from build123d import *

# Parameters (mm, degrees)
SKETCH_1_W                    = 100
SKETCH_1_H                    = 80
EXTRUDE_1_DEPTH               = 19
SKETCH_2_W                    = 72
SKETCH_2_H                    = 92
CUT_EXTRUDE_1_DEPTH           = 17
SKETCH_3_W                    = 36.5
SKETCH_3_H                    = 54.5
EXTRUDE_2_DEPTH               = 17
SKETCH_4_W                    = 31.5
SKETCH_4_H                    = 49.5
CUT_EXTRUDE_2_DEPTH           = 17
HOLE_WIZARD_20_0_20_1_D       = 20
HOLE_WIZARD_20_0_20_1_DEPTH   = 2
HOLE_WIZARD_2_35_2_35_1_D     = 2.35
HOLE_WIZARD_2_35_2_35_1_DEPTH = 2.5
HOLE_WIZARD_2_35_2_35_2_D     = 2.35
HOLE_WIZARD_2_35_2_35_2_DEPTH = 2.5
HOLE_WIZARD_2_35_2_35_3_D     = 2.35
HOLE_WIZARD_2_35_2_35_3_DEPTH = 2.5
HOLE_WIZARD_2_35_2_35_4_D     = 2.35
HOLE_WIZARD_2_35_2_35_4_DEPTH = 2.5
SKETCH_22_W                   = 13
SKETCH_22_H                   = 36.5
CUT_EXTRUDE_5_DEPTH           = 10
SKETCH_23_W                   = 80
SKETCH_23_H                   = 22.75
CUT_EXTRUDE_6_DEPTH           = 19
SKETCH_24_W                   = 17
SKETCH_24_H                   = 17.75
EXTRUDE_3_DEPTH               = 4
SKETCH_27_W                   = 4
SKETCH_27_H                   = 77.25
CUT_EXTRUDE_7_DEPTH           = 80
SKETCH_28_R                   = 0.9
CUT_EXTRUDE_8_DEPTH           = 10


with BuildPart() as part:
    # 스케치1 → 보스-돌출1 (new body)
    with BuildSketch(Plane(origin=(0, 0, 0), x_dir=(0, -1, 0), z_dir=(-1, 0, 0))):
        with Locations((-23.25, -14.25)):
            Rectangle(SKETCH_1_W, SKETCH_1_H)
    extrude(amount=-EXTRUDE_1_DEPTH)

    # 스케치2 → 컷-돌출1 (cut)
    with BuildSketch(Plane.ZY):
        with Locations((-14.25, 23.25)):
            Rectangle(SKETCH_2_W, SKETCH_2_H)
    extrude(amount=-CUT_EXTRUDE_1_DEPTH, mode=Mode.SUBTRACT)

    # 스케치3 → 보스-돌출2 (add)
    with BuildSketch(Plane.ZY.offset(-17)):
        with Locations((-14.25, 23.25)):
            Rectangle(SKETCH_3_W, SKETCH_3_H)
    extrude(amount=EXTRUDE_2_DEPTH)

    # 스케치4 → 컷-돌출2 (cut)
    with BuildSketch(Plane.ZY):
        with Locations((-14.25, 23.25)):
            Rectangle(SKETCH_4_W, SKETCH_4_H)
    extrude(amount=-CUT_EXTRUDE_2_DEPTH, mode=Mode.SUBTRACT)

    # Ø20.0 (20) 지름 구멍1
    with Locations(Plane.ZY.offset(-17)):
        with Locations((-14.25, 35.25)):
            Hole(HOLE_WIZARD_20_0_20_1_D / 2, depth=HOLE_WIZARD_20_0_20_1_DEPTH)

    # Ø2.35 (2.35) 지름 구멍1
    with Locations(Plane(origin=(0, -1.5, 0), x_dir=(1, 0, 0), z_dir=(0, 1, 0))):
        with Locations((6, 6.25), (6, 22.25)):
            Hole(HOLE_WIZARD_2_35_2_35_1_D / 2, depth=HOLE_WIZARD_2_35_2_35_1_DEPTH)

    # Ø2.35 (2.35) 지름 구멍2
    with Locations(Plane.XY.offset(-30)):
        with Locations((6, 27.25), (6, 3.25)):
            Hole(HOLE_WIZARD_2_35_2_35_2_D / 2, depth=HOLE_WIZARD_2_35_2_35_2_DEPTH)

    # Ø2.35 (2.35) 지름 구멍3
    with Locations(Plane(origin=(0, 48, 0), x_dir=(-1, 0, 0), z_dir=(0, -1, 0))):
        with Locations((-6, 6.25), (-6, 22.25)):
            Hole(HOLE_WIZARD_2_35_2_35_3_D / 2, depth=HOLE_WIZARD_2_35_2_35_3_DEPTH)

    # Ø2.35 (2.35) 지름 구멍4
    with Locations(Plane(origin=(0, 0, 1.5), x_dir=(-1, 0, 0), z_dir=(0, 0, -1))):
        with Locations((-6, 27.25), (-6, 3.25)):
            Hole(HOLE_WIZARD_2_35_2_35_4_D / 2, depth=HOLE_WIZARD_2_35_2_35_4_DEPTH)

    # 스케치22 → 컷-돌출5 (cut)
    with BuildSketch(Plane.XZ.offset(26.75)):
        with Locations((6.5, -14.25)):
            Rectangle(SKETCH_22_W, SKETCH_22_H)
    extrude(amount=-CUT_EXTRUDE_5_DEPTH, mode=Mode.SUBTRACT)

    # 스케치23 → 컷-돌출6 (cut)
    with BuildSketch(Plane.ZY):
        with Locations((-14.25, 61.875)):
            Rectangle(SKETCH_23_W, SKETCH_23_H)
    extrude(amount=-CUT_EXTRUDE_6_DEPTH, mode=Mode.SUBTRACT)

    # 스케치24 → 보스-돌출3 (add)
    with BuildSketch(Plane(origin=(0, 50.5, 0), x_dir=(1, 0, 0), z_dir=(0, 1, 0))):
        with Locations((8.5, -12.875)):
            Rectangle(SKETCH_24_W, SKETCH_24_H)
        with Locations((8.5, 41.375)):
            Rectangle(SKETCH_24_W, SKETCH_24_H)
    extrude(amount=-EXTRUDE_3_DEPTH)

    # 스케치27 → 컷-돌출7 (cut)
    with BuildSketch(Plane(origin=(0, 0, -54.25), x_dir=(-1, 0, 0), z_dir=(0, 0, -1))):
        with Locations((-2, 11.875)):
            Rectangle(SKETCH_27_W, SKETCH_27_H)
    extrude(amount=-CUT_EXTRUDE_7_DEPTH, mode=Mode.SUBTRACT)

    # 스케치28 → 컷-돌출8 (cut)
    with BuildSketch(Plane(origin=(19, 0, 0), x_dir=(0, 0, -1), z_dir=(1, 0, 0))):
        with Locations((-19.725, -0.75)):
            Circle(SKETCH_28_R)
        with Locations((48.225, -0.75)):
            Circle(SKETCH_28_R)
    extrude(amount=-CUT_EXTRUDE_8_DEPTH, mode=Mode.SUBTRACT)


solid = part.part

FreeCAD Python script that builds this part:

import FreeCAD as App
import Part
import Sketcher
Q = App.Units.Quantity

doc = App.newDocument("Part")
params = doc.addObject("Spreadsheet::Sheet", "Params")
for row, (alias, value) in enumerate([
    ("sketch1_width", "100 mm"),
    ("sketch1_height", "80 mm"),
    ("pad1_length", "19 mm"),
    ("sketch2_width", "92 mm"),
    ("sketch2_height", "72 mm"),
    ("pocket1_length", "17 mm"),
    ("sketch3_width", "54.5 mm"),
    ("sketch3_height", "36.5 mm"),
    ("pad2_length", "17 mm"),
    ("sketch4_width", "49.5 mm"),
    ("sketch4_height", "31.5 mm"),
    ("pocket2_length", "17 mm"),
    ("sketch5_diameter", "20 mm"),
    ("hole_diameter", "20 mm"),
    ("hole_depth", "2 mm"),
    ("sketch6_diameter", "2.35 mm"),
    ("hole2_diameter", "2.35 mm"),
    ("hole2_depth", "2.5 mm"),
    ("sketch7_diameter", "2.35 mm"),
    ("hole3_diameter", "2.35 mm"),
    ("hole3_depth", "2.5 mm"),
    ("sketch8_diameter", "2.35 mm"),
    ("hole4_diameter", "2.35 mm"),
    ("hole4_depth", "2.5 mm"),
    ("sketch9_diameter", "2.35 mm"),
    ("hole5_diameter", "2.35 mm"),
    ("hole5_depth", "2.5 mm"),
    ("sketch10_width", "13 mm"),
    ("sketch10_height", "36.5 mm"),
    ("pocket3_length", "10 mm"),
    ("sketch11_height", "80 mm"),
    ("sketch11_width", "22.75 mm"),
    ("pocket4_length", "19 mm"),
    ("sketch12_width", "17 mm"),
    ("sketch12_height", "17.75 mm"),
    ("pad3_length", "4 mm"),
    ("sketch13_width", "4 mm"),
    ("sketch13_height", "77.25 mm"),
    ("pocket5_length", "80 mm"),
    ("sketch14_diameter", "1.8 mm"),
    ("pocket6_length", "10 mm"),
], start=1):
    params.set(f"A{row}", alias)
    params.set(f"B{row}", "=" + value)
    params.setAlias(f"B{row}", alias)

body = doc.addObject("PartDesign::Body", "Body")

# Sketch on YZ plane
sketch1 = doc.addObject("Sketcher::SketchObject", "Sketch")
body.addObject(sketch1)
sketch1.AttachmentSupport = (doc.YZ_Plane, [""])
sketch1.MapMode = "FlatFace"
sketch1.addGeometry([
    Part.LineSegment(App.Vector(73, 26, 0), App.Vector(73, -54, 0)),
    Part.LineSegment(App.Vector(73, -54, 0), App.Vector(-27, -54, 0)),
    Part.LineSegment(App.Vector(-27, -54, 0), App.Vector(-27, 26, 0)),
    Part.LineSegment(App.Vector(-27, 26, 0), App.Vector(73, 26, 0)),
], False)
sketch1.addConstraint([
    Sketcher.Constraint("Coincident", 0, 2, 1, 1),
    Sketcher.Constraint("Coincident", 1, 2, 2, 1),
    Sketcher.Constraint("Coincident", 2, 2, 3, 1),
    Sketcher.Constraint("Coincident", 3, 2, 0, 1),
    Sketcher.Constraint("Vertical", 0),
    Sketcher.Constraint("Horizontal", 1),
    Sketcher.Constraint("Vertical", 2),
    Sketcher.Constraint("Horizontal", 3),
    Sketcher.Constraint("DistanceX", 1, 2, 1, 1, Q("100 mm")),
    Sketcher.Constraint("DistanceY", 0, 2, 0, 1, Q("80 mm")),
    Sketcher.Constraint("DistanceX", -1, 1, 0, 2, Q("73.25 mm")),
    Sketcher.Constraint("DistanceY", 0, 2, -1, 1, Q("54.25 mm")),
])
sketch1.setExpression("Constraints[8]", "Params.sketch1_width")
sketch1.setExpression("Constraints[9]", "Params.sketch1_height")
pad1 = doc.addObject("PartDesign::Pad", "Pad")
body.addObject(pad1)
pad1.Profile = sketch1
pad1.setExpression("Length", "Params.pad1_length")

# Sketch on YZ plane
sketch2 = doc.addObject("Sketcher::SketchObject", "Sketch001")
body.addObject(sketch2)
sketch2.AttachmentSupport = (doc.YZ_Plane, [""])
sketch2.MapMode = "FlatFace"
sketch2.addGeometry([
    Part.LineSegment(App.Vector(69, -50, 0), App.Vector(-23, -50, 0)),
    Part.LineSegment(App.Vector(-23, -50, 0), App.Vector(-23, 22, 0)),
    Part.LineSegment(App.Vector(-23, 22, 0), App.Vector(69, 22, 0)),
    Part.LineSegment(App.Vector(69, 22, 0), App.Vector(69, -50, 0)),
], False)
sketch2.addConstraint([
    Sketcher.Constraint("Coincident", 0, 2, 1, 1),
    Sketcher.Constraint("Coincident", 1, 2, 2, 1),
    Sketcher.Constraint("Coincident", 2, 2, 3, 1),
    Sketcher.Constraint("Coincident", 3, 2, 0, 1),
    Sketcher.Constraint("Horizontal", 0),
    Sketcher.Constraint("Vertical", 1),
    Sketcher.Constraint("Horizontal", 2),
    Sketcher.Constraint("Vertical", 3),
    Sketcher.Constraint("DistanceX", 0, 2, 0, 1, Q("92 mm")),
    Sketcher.Constraint("DistanceY", 1, 1, 1, 2, Q("72 mm")),
    Sketcher.Constraint("DistanceX", 0, 2, -1, 1, Q("22.75 mm")),
    Sketcher.Constraint("DistanceY", 0, 2, -1, 1, Q("50.25 mm")),
])
sketch2.setExpression("Constraints[8]", "Params.sketch2_width")
sketch2.setExpression("Constraints[9]", "Params.sketch2_height")
pocket1 = doc.addObject("PartDesign::Pocket", "Pocket")
body.addObject(pocket1)
pocket1.Profile = sketch2
pocket1.setExpression("Length", "Params.pocket1_length")
pocket1.Reversed = True

# Sketch on YZ plane
sketch3 = doc.addObject("Sketcher::SketchObject", "Sketch002")
body.addObject(sketch3)
sketch3.AttachmentSupport = (doc.YZ_Plane, [""])
sketch3.MapMode = "FlatFace"
sketch3.AttachmentOffset = App.Placement(App.Vector(0, 0, 17), App.Rotation())
sketch3.addGeometry([
    Part.LineSegment(App.Vector(50, -32, 0), App.Vector(-4, -32, 0)),
    Part.LineSegment(App.Vector(-4, -32, 0), App.Vector(-4, 4, 0)),
    Part.LineSegment(App.Vector(-4, 4, 0), App.Vector(50, 4, 0)),
    Part.LineSegment(App.Vector(50, 4, 0), App.Vector(50, -32, 0)),
], False)
sketch3.addConstraint([
    Sketcher.Constraint("Coincident", 0, 2, 1, 1),
    Sketcher.Constraint("Coincident", 1, 2, 2, 1),
    Sketcher.Constraint("Coincident", 2, 2, 3, 1),
    Sketcher.Constraint("Coincident", 3, 2, 0, 1),
    Sketcher.Constraint("Horizontal", 0),
    Sketcher.Constraint("Vertical", 1),
    Sketcher.Constraint("Horizontal", 2),
    Sketcher.Constraint("Vertical", 3),
    Sketcher.Constraint("DistanceX", 0, 2, 0, 1, Q("54.5 mm")),
    Sketcher.Constraint("DistanceY", 1, 1, 1, 2, Q("36.5 mm")),
    Sketcher.Constraint("DistanceX", 0, 2, -1, 1, Q("4 mm")),
    Sketcher.Constraint("DistanceY", -1, 1, 1, 2, Q("4 mm")),
])
sketch3.setExpression("Constraints[8]", "Params.sketch3_width")
sketch3.setExpression("Constraints[9]", "Params.sketch3_height")
pad2 = doc.addObject("PartDesign::Pad", "Pad001")
body.addObject(pad2)
pad2.Profile = sketch3
pad2.setExpression("Length", "Params.pad2_length")
pad2.Reversed = True

# Sketch on YZ plane
sketch4 = doc.addObject("Sketcher::SketchObject", "Sketch003")
body.addObject(sketch4)
sketch4.AttachmentSupport = (doc.YZ_Plane, [""])
sketch4.MapMode = "FlatFace"
sketch4.addGeometry([
    Part.LineSegment(App.Vector(48, -30, 0), App.Vector(-2, -30, 0)),
    Part.LineSegment(App.Vector(-2, -30, 0), App.Vector(-2, 2, 0)),
    Part.LineSegment(App.Vector(-2, 2, 0), App.Vector(48, 2, 0)),
    Part.LineSegment(App.Vector(48, 2, 0), App.Vector(48, -30, 0)),
], False)
sketch4.addConstraint([
    Sketcher.Constraint("Coincident", 0, 2, 1, 1),
    Sketcher.Constraint("Coincident", 1, 2, 2, 1),
    Sketcher.Constraint("Coincident", 2, 2, 3, 1),
    Sketcher.Constraint("Coincident", 3, 2, 0, 1),
    Sketcher.Constraint("Horizontal", 0),
    Sketcher.Constraint("Vertical", 1),
    Sketcher.Constraint("Horizontal", 2),
    Sketcher.Constraint("Vertical", 3),
    Sketcher.Constraint("DistanceX", 0, 2, 0, 1, Q("49.5 mm")),
    Sketcher.Constraint("DistanceY", 1, 1, 1, 2, Q("31.5 mm")),
    Sketcher.Constraint("DistanceY", 0, 2, -1, 1, Q("30 mm")),
    Sketcher.Constraint("DistanceX", -1, 1, 2, 2, Q("48 mm")),
])
sketch4.setExpression("Constraints[8]", "Params.sketch4_width")
sketch4.setExpression("Constraints[9]", "Params.sketch4_height")
pocket2 = doc.addObject("PartDesign::Pocket", "Pocket001")
body.addObject(pocket2)
pocket2.Profile = sketch4
pocket2.setExpression("Length", "Params.pocket2_length")
pocket2.Reversed = True

# Sketch on YZ plane
sketch5 = doc.addObject("Sketcher::SketchObject", "Sketch004")
body.addObject(sketch5)
sketch5.AttachmentSupport = (doc.YZ_Plane, [""])
sketch5.MapMode = "FlatFace"
sketch5.AttachmentOffset = App.Placement(App.Vector(0, 0, 17), App.Rotation())
sketch5.addGeometry(Part.Circle(App.Vector(35, -14, 0), App.Vector(0, 0, 1), 10), False)
sketch5.addConstraint([
    Sketcher.Constraint("Diameter", 0, Q("20 mm")),
    Sketcher.Constraint("DistanceX", -1, 1, 0, 3, Q("35.25 mm")),
    Sketcher.Constraint("DistanceY", 0, 3, -1, 1, Q("14.25 mm")),
])
sketch5.setExpression("Constraints[0]", "Params.sketch5_diameter")
doc.recompute()
hole = doc.addObject("PartDesign::Hole", "Hole")
body.addObject(hole)
hole.Profile = sketch5
hole.ThreadType = "None"
hole.setExpression("Diameter", "Params.hole_diameter")
hole.DepthType = "Dimension"
hole.setExpression("Depth", "Params.hole_depth")
hole.DrillPoint = "Flat"
hole.Reversed = True

# Sketch on XZ plane
sketch6 = doc.addObject("Sketcher::SketchObject", "Sketch005")
body.addObject(sketch6)
sketch6.AttachmentSupport = (doc.XZ_Plane, [""])
sketch6.MapMode = "FlatFace"
sketch6.AttachmentOffset = App.Placement(App.Vector(0, 0, 1.5), App.Rotation())
sketch6.addGeometry([
    Part.Circle(App.Vector(6, -6.2, 0), App.Vector(0, 0, 1), 1.2),
    Part.Circle(App.Vector(6, -22.2, 0), App.Vector(0, 0, 1), 1.2),
], False)
sketch6.addConstraint([
    Sketcher.Constraint("Equal", 0, 1),
    Sketcher.Constraint("Vertical", 0, 3, 1, 3),
    Sketcher.Constraint("Diameter", 0, Q("2.35 mm")),
    Sketcher.Constraint("DistanceX", -1, 1, 0, 3, Q("6 mm")),
    Sketcher.Constraint("DistanceY", 1, 3, 0, 3, Q("16 mm")),
    Sketcher.Constraint("DistanceY", 0, 3, -1, 1, Q("6.25 mm")),
])
sketch6.setExpression("Constraints[2]", "Params.sketch6_diameter")
doc.recompute()
hole2 = doc.addObject("PartDesign::Hole", "Hole001")
body.addObject(hole2)
hole2.Profile = sketch6
hole2.ThreadType = "None"
hole2.setExpression("Diameter", "Params.hole2_diameter")
hole2.DepthType = "Dimension"
hole2.setExpression("Depth", "Params.hole2_depth")
hole2.DrillPoint = "Flat"
hole2.Reversed = True

# Sketch on XY plane
sketch7 = doc.addObject("Sketcher::SketchObject", "Sketch006")
body.addObject(sketch7)
sketch7.AttachmentSupport = (doc.XY_Plane, [""])
sketch7.MapMode = "FlatFace"
sketch7.AttachmentOffset = App.Placement(App.Vector(0, 0, -30), App.Rotation())
sketch7.addGeometry([
    Part.Circle(App.Vector(6, 27.2, 0), App.Vector(0, 0, 1), 1.2),
    Part.Circle(App.Vector(6, 3.2, 0), App.Vector(0, 0, 1), 1.2),
], False)
sketch7.addConstraint([
    Sketcher.Constraint("Equal", 0, 1),
    Sketcher.Constraint("Vertical", 0, 3, 1, 3),
    Sketcher.Constraint("Diameter", 0, Q("2.35 mm")),
    Sketcher.Constraint("DistanceX", -1, 1, 0, 3, Q("6 mm")),
    Sketcher.Constraint("DistanceY", 1, 3, 0, 3, Q("24 mm")),
    Sketcher.Constraint("DistanceY", -1, 1, 0, 3, Q("27.25 mm")),
])
sketch7.setExpression("Constraints[2]", "Params.sketch7_diameter")
doc.recompute()
hole3 = doc.addObject("PartDesign::Hole", "Hole002")
body.addObject(hole3)
hole3.Profile = sketch7
hole3.ThreadType = "None"
hole3.setExpression("Diameter", "Params.hole3_diameter")
hole3.DepthType = "Dimension"
hole3.setExpression("Depth", "Params.hole3_depth")
hole3.DrillPoint = "Flat"

# Sketch on XZ plane
sketch8 = doc.addObject("Sketcher::SketchObject", "Sketch007")
body.addObject(sketch8)
sketch8.AttachmentSupport = (doc.XZ_Plane, [""])
sketch8.MapMode = "FlatFace"
sketch8.AttachmentOffset = App.Placement(App.Vector(0, 0, -48), App.Rotation())
sketch8.addGeometry([
    Part.Circle(App.Vector(6, -6.2, 0), App.Vector(0, 0, 1), 1.2),
    Part.Circle(App.Vector(6, -22.2, 0), App.Vector(0, 0, 1), 1.2),
], False)
sketch8.addConstraint([
    Sketcher.Constraint("Equal", 0, 1),
    Sketcher.Constraint("Vertical", 0, 3, 1, 3),
    Sketcher.Constraint("Diameter", 0, Q("2.35 mm")),
    Sketcher.Constraint("DistanceX", -1, 1, 0, 3, Q("6 mm")),
    Sketcher.Constraint("DistanceY", 1, 3, 0, 3, Q("16 mm")),
    Sketcher.Constraint("DistanceY", 0, 3, -1, 1, Q("6.25 mm")),
])
sketch8.setExpression("Constraints[2]", "Params.sketch8_diameter")
doc.recompute()
hole4 = doc.addObject("PartDesign::Hole", "Hole003")
body.addObject(hole4)
hole4.Profile = sketch8
hole4.ThreadType = "None"
hole4.setExpression("Diameter", "Params.hole4_diameter")
hole4.DepthType = "Dimension"
hole4.setExpression("Depth", "Params.hole4_depth")
hole4.DrillPoint = "Flat"

# Sketch on XY plane
sketch9 = doc.addObject("Sketcher::SketchObject", "Sketch008")
body.addObject(sketch9)
sketch9.AttachmentSupport = (doc.XY_Plane, [""])
sketch9.MapMode = "FlatFace"
sketch9.AttachmentOffset = App.Placement(App.Vector(0, 0, 1.5), App.Rotation())
sketch9.addGeometry([
    Part.Circle(App.Vector(6, 27.2, 0), App.Vector(0, 0, 1), 1.2),
    Part.Circle(App.Vector(6, 3.2, 0), App.Vector(0, 0, 1), 1.2),
], False)
sketch9.addConstraint([
    Sketcher.Constraint("Equal", 0, 1),
    Sketcher.Constraint("Vertical", 0, 3, 1, 3),
    Sketcher.Constraint("Diameter", 0, Q("2.35 mm")),
    Sketcher.Constraint("DistanceX", -1, 1, 0, 3, Q("6 mm")),
    Sketcher.Constraint("DistanceY", 1, 3, 0, 3, Q("24 mm")),
    Sketcher.Constraint("DistanceY", -1, 1, 0, 3, Q("27.25 mm")),
])
sketch9.setExpression("Constraints[2]", "Params.sketch9_diameter")
doc.recompute()
hole5 = doc.addObject("PartDesign::Hole", "Hole004")
body.addObject(hole5)
hole5.Profile = sketch9
hole5.ThreadType = "None"
hole5.setExpression("Diameter", "Params.hole5_diameter")
hole5.DepthType = "Dimension"
hole5.setExpression("Depth", "Params.hole5_depth")
hole5.DrillPoint = "Flat"
hole5.Reversed = True

# Sketch on XZ plane
sketch10 = doc.addObject("Sketcher::SketchObject", "Sketch009")
body.addObject(sketch10)
sketch10.AttachmentSupport = (doc.XZ_Plane, [""])
sketch10.MapMode = "FlatFace"
sketch10.AttachmentOffset = App.Placement(App.Vector(0, 0, 26.75), App.Rotation())
sketch10.addGeometry([
    Part.LineSegment(App.Vector(0, 4, 0), App.Vector(0, -32, 0)),
    Part.LineSegment(App.Vector(0, -32, 0), App.Vector(13, -32, 0)),
    Part.LineSegment(App.Vector(13, -32, 0), App.Vector(13, 4, 0)),
    Part.LineSegment(App.Vector(13, 4, 0), App.Vector(0, 4, 0)),
], False)
sketch10.addConstraint([
    Sketcher.Constraint("Coincident", 0, 2, 1, 1),
    Sketcher.Constraint("Coincident", 1, 2, 2, 1),
    Sketcher.Constraint("Coincident", 2, 2, 3, 1),
    Sketcher.Constraint("Coincident", 3, 2, 0, 1),
    Sketcher.Constraint("Vertical", 0),
    Sketcher.Constraint("Horizontal", 1),
    Sketcher.Constraint("Vertical", 2),
    Sketcher.Constraint("Horizontal", 3),
    Sketcher.Constraint("PointOnObject", 0, 2, -2),
    Sketcher.Constraint("DistanceX", 1, 1, 1, 2, Q("13 mm")),
    Sketcher.Constraint("DistanceY", 0, 2, 0, 1, Q("36.5 mm")),
    Sketcher.Constraint("DistanceY", -1, 1, 2, 2, Q("4 mm")),
])
sketch10.setExpression("Constraints[9]", "Params.sketch10_width")
sketch10.setExpression("Constraints[10]", "Params.sketch10_height")
pocket3 = doc.addObject("PartDesign::Pocket", "Pocket002")
body.addObject(pocket3)
pocket3.Profile = sketch10
pocket3.setExpression("Length", "Params.pocket3_length")

# Sketch on YZ plane
sketch11 = doc.addObject("Sketcher::SketchObject", "Sketch010")
body.addObject(sketch11)
sketch11.AttachmentSupport = (doc.YZ_Plane, [""])
sketch11.MapMode = "FlatFace"
sketch11.addGeometry([
    Part.LineSegment(App.Vector(73, -54, 0), App.Vector(50, -54, 0)),
    Part.LineSegment(App.Vector(50, -54, 0), App.Vector(50, 26, 0)),
    Part.LineSegment(App.Vector(50, 26, 0), App.Vector(73, 26, 0)),
    Part.LineSegment(App.Vector(73, 26, 0), App.Vector(73, -54, 0)),
], False)
sketch11.addConstraint([
    Sketcher.Constraint("Coincident", 0, 2, 1, 1),
    Sketcher.Constraint("Coincident", 1, 2, 2, 1),
    Sketcher.Constraint("Coincident", 2, 2, 3, 1),
    Sketcher.Constraint("Coincident", 3, 2, 0, 1),
    Sketcher.Constraint("Horizontal", 0),
    Sketcher.Constraint("Vertical", 1),
    Sketcher.Constraint("Horizontal", 2),
    Sketcher.Constraint("Vertical", 3),
    Sketcher.Constraint("DistanceY", 1, 1, 1, 2, Q("80 mm")),
    Sketcher.Constraint("DistanceX", 0, 2, 0, 1, Q("22.75 mm")),
    Sketcher.Constraint("DistanceX", -1, 1, 0, 2, Q("50.5 mm")),
    Sketcher.Constraint("DistanceY", 0, 2, -1, 1, Q("54.25 mm")),
])
sketch11.setExpression("Constraints[8]", "Params.sketch11_height")
sketch11.setExpression("Constraints[9]", "Params.sketch11_width")
pocket4 = doc.addObject("PartDesign::Pocket", "Pocket003")
body.addObject(pocket4)
pocket4.Profile = sketch11
pocket4.setExpression("Length", "Params.pocket4_length")
pocket4.Reversed = True

# Sketch on XZ plane
sketch12 = doc.addObject("Sketcher::SketchObject", "Sketch011")
body.addObject(sketch12)
sketch12.AttachmentSupport = (doc.XZ_Plane, [""])
sketch12.MapMode = "FlatFace"
sketch12.AttachmentOffset = App.Placement(App.Vector(0, 0, -50.5), App.Rotation())
sketch12.addGeometry([
    Part.LineSegment(App.Vector(0, 4, 0), App.Vector(0, 22, 0)),  # 0
    Part.LineSegment(App.Vector(0, 22, 0), App.Vector(17, 22, 0)),  # 1
    Part.LineSegment(App.Vector(17, 22, 0), App.Vector(17, 4, 0)),  # 2
    Part.LineSegment(App.Vector(17, 4, 0), App.Vector(0, 4, 0)),  # 3
    Part.LineSegment(App.Vector(0, -50, 0), App.Vector(0, -32, 0)),  # 4
    Part.LineSegment(App.Vector(0, -32, 0), App.Vector(17, -32, 0)),  # 5
    Part.LineSegment(App.Vector(17, -32, 0), App.Vector(17, -50, 0)),  # 6
    Part.LineSegment(App.Vector(17, -50, 0), App.Vector(0, -50, 0)),  # 7
], False)
sketch12.addConstraint([
    Sketcher.Constraint("Coincident", 0, 2, 1, 1),
    Sketcher.Constraint("Coincident", 1, 2, 2, 1),
    Sketcher.Constraint("Coincident", 2, 2, 3, 1),
    Sketcher.Constraint("Coincident", 3, 2, 0, 1),
    Sketcher.Constraint("Coincident", 4, 2, 5, 1),
    Sketcher.Constraint("Coincident", 5, 2, 6, 1),
    Sketcher.Constraint("Coincident", 6, 2, 7, 1),
    Sketcher.Constraint("Coincident", 7, 2, 4, 1),
    Sketcher.Constraint("Vertical", 0),
    Sketcher.Constraint("Horizontal", 1),
    Sketcher.Constraint("Vertical", 2),
    Sketcher.Constraint("Horizontal", 3),
    Sketcher.Constraint("Vertical", 4),
    Sketcher.Constraint("Horizontal", 5),
    Sketcher.Constraint("Vertical", 6),
    Sketcher.Constraint("Horizontal", 7),
    Sketcher.Constraint("PointOnObject", 0, 2, -2),
    Sketcher.Constraint("PointOnObject", 4, 2, -2),
    Sketcher.Constraint("Vertical", 2, 2, 5, 2),
    Sketcher.Constraint("Equal", 2, 4),
    Sketcher.Constraint("DistanceX", 1, 1, 1, 2, Q("17 mm")),
    Sketcher.Constraint("DistanceY", -1, 1, 2, 2, Q("4 mm")),
    Sketcher.Constraint("DistanceY", 6, 2, 1, 2, Q("72 mm")),
    Sketcher.Constraint("DistanceY", 0, 1, 0, 2, Q("17.75 mm")),
])
sketch12.setExpression("Constraints[20]", "Params.sketch12_width")
sketch12.setExpression("Constraints[23]", "Params.sketch12_height")
pad3 = doc.addObject("PartDesign::Pad", "Pad002")
body.addObject(pad3)
pad3.Profile = sketch12
pad3.setExpression("Length", "Params.pad3_length")

# Sketch on XY plane
sketch13 = doc.addObject("Sketcher::SketchObject", "Sketch012")
body.addObject(sketch13)
sketch13.AttachmentSupport = (doc.XY_Plane, [""])
sketch13.MapMode = "FlatFace"
sketch13.AttachmentOffset = App.Placement(App.Vector(0, 0, -54.25), App.Rotation())
sketch13.addGeometry([
    Part.LineSegment(App.Vector(4, 50.5, 0), App.Vector(4, -26.8, 0)),
    Part.LineSegment(App.Vector(4, -26.8, 0), App.Vector(0, -26.8, 0)),
    Part.LineSegment(App.Vector(0, -26.8, 0), App.Vector(0, 50.5, 0)),
    Part.LineSegment(App.Vector(0, 50.5, 0), App.Vector(4, 50.5, 0)),
], False)
sketch13.addConstraint([
    Sketcher.Constraint("Coincident", 0, 2, 1, 1),
    Sketcher.Constraint("Coincident", 1, 2, 2, 1),
    Sketcher.Constraint("Coincident", 2, 2, 3, 1),
    Sketcher.Constraint("Coincident", 3, 2, 0, 1),
    Sketcher.Constraint("Vertical", 0),
    Sketcher.Constraint("Horizontal", 1),
    Sketcher.Constraint("Vertical", 2),
    Sketcher.Constraint("Horizontal", 3),
    Sketcher.Constraint("PointOnObject", 1, 2, -2),
    Sketcher.Constraint("DistanceX", 1, 2, 1, 1, Q("4 mm")),
    Sketcher.Constraint("DistanceY", 0, 2, 0, 1, Q("77.25 mm")),
    Sketcher.Constraint("DistanceY", -1, 1, 2, 2, Q("50.5 mm")),
])
sketch13.setExpression("Constraints[9]", "Params.sketch13_width")
sketch13.setExpression("Constraints[10]", "Params.sketch13_height")
pocket5 = doc.addObject("PartDesign::Pocket", "Pocket004")
body.addObject(pocket5)
pocket5.Profile = sketch13
pocket5.setExpression("Length", "Params.pocket5_length")
pocket5.Reversed = True

# Sketch on YZ plane
sketch14 = doc.addObject("Sketcher::SketchObject", "Sketch013")
body.addObject(sketch14)
sketch14.AttachmentSupport = (doc.YZ_Plane, [""])
sketch14.MapMode = "FlatFace"
sketch14.AttachmentOffset = App.Placement(App.Vector(0, 0, 19), App.Rotation())
sketch14.addGeometry([
    Part.Circle(App.Vector(-0.8, 19.7, 0), App.Vector(0, 0, 1), 0.9),
    Part.Circle(App.Vector(-0.8, -48.2, 0), App.Vector(0, 0, 1), 0.9),
], False)
sketch14.addConstraint([
    Sketcher.Constraint("Equal", 0, 1),
    Sketcher.Constraint("Vertical", 0, 3, 1, 3),
    Sketcher.Constraint("Diameter", 0, Q("1.8 mm")),
    Sketcher.Constraint("DistanceX", 0, 3, -1, 1, Q("0.75 mm")),
    Sketcher.Constraint("DistanceY", 1, 3, 0, 3, Q("67.95 mm")),
    Sketcher.Constraint("DistanceY", -1, 1, 0, 3, Q("19.725 mm")),
])
sketch14.setExpression("Constraints[2]", "Params.sketch14_diameter")
pocket6 = doc.addObject("PartDesign::Pocket", "Pocket005")
body.addObject(pocket6)
pocket6.Profile = sketch14
pocket6.setExpression("Length", "Params.pocket6_length")

doc.recompute()
